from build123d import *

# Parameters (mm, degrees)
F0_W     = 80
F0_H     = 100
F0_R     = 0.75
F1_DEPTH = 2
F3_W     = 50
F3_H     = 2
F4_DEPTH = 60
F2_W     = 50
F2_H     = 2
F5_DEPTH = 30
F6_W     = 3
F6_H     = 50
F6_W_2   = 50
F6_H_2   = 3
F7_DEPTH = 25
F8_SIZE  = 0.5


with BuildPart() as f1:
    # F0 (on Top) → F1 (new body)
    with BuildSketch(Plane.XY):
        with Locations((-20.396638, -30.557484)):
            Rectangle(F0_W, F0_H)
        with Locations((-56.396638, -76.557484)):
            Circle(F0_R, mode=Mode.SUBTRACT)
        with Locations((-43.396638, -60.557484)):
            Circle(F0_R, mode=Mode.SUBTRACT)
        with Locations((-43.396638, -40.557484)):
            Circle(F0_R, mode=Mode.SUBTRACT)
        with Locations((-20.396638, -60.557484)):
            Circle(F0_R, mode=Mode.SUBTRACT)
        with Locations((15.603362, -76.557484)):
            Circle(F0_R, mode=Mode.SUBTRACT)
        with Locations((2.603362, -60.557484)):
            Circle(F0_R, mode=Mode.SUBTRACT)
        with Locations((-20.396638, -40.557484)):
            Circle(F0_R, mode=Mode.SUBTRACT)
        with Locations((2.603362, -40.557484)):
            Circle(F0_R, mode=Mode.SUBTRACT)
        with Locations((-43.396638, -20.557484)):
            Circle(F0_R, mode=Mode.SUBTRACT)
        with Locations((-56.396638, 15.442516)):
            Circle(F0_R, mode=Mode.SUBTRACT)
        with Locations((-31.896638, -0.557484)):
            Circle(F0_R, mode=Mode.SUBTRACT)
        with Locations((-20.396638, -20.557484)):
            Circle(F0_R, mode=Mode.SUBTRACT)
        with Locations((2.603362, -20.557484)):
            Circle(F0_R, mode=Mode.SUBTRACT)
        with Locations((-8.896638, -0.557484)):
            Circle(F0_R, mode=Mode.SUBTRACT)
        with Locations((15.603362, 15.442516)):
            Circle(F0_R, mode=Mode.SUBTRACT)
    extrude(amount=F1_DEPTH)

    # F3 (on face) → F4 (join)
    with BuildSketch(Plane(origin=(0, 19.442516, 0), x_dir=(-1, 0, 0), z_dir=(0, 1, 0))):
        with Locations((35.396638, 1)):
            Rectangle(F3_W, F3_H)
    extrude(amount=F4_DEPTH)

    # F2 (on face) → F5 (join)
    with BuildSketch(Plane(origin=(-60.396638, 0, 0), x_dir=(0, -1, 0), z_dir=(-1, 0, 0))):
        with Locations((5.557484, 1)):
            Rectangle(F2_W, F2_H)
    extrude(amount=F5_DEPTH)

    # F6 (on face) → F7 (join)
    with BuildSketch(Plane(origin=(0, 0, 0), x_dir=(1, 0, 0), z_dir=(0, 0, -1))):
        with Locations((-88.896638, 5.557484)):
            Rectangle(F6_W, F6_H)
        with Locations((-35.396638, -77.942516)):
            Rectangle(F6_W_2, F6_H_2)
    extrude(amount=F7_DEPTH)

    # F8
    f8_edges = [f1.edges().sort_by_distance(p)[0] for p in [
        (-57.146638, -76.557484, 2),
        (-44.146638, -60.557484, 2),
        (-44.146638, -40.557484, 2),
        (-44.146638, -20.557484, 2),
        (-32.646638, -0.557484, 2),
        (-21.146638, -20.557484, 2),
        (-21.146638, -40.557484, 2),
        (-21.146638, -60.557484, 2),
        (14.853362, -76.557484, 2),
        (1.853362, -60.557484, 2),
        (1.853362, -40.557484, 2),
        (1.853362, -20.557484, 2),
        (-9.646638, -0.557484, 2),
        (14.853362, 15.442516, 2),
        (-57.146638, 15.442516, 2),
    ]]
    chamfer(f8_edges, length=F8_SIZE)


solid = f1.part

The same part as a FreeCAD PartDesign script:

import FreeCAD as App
import Part
import Sketcher

V = App.Vector
Q = App.Units.Quantity


def edges_at(feature, points):
    """Names of the edges that pass closest to the given points."""
    edges = feature.Shape.Edges
    near = lambda p: min(range(len(edges)), key=lambda i: edges[i].distToShape(Part.Vertex(*p))[0])
    return sorted({f"Edge{near(p) + 1}" for p in points})

doc = App.newDocument("Part")
body = doc.addObject("PartDesign::Body", "Body")

# Sketch on XY plane
sketch1 = body.newObject("Sketcher::SketchObject", "Sketch")
sketch1.AttachmentSupport = (doc.getObject("XY_Plane"), [""])
sketch1.MapMode = "FlatFace"
sketch1.addGeometry(Part.LineSegment(V(-60.4, 19.4, 0), V(-60.4, -80.6, 0)), False)
sketch1.addGeometry(Part.LineSegment(V(-60.4, -80.6, 0), V(19.6, -80.6, 0)), False)
sketch1.addGeometry(Part.LineSegment(V(19.6, -80.6, 0), V(19.6, 19.4, 0)), False)
sketch1.addGeometry(Part.LineSegment(V(19.6, 19.4, 0), V(-60.4, 19.4, 0)), False)
sketch1.addGeometry(Part.Circle(V(-56.4, -76.6, 0), V(0, 0, 1), 0.8), False)
sketch1.addGeometry(Part.Circle(V(-43.4, -60.6, 0), V(0, 0, 1), 0.8), False)
sketch1.addGeometry(Part.Circle(V(-43.4, -40.6, 0), V(0, 0, 1), 0.8), False)
sketch1.addGeometry(Part.Circle(V(-20.4, -60.6, 0), V(0, 0, 1), 0.8), False)
sketch1.addGeometry(Part.Circle(V(15.6, -76.6, 0), V(0, 0, 1), 0.8), False)
sketch1.addGeometry(Part.Circle(V(2.6, -60.6, 0), V(0, 0, 1), 0.8), False)
sketch1.addGeometry(Part.Circle(V(-20.4, -40.6, 0), V(0, 0, 1), 0.8), False)
sketch1.addGeometry(Part.Circle(V(2.6, -40.6, 0), V(0, 0, 1), 0.8), False)
sketch1.addGeometry(Part.Circle(V(-43.4, -20.6, 0), V(0, 0, 1), 0.8), False)
sketch1.addGeometry(Part.Circle(V(-56.4, 15.4, 0), V(0, 0, 1), 0.8), False)
sketch1.addGeometry(Part.Circle(V(-31.9, -0.6, 0), V(0, 0, 1), 0.8), False)
sketch1.addGeometry(Part.Circle(V(-20.4, -20.6, 0), V(0, 0, 1), 0.8), False)
sketch1.addGeometry(Part.Circle(V(2.6, -20.6, 0), V(0, 0, 1), 0.8), False)
sketch1.addGeometry(Part.Circle(V(-8.9, -0.6, 0), V(0, 0, 1), 0.8), False)
sketch1.addGeometry(Part.Circle(V(15.6, 15.4, 0), V(0, 0, 1), 0.8), False)
sketch1.addConstraint(Sketcher.Constraint("Coincident", 0, 2, 1, 1))
sketch1.addConstraint(Sketcher.Constraint("Coincident", 1, 2, 2, 1))
sketch1.addConstraint(Sketcher.Constraint("Coincident", 2, 2, 3, 1))
sketch1.addConstraint(Sketcher.Constraint("Coincident", 3, 2, 0, 1))
sketch1.addConstraint(Sketcher.Constraint("Vertical", 0))
sketch1.addConstraint(Sketcher.Constraint("Horizontal", 1))
sketch1.addConstraint(Sketcher.Constraint("Vertical", 2))
sketch1.addConstraint(Sketcher.Constraint("Horizontal", 3))
sketch1.addConstraint(Sketcher.Constraint("Equal", 4, 5))
sketch1.addConstraint(Sketcher.Constraint("Equal", 5, 6))
sketch1.addConstraint(Sketcher.Constraint("Equal", 6, 7))
sketch1.addConstraint(Sketcher.Constraint("Equal", 7, 8))
sketch1.addConstraint(Sketcher.Constraint("Equal", 8, 9))
sketch1.addConstraint(Sketcher.Constraint("Equal", 9, 10))
sketch1.addConstraint(Sketcher.Constraint("Equal", 10, 11))
sketch1.addConstraint(Sketcher.Constraint("Equal", 11, 12))
sketch1.addConstraint(Sketcher.Constraint("Equal", 12, 13))
sketch1.addConstraint(Sketcher.Constraint("Equal", 13, 14))
sketch1.addConstraint(Sketcher.Constraint("Equal", 14, 15))
sketch1.addConstraint(Sketcher.Constraint("Equal", 15, 16))
sketch1.addConstraint(Sketcher.Constraint("Equal", 16, 17))
sketch1.addConstraint(Sketcher.Constraint("Equal", 17, 18))
sketch1.addConstraint(Sketcher.Constraint("Horizontal", 5, 3, 7, 3))
sketch1.addConstraint(Sketcher.Constraint("Horizontal", 4, 3, 8, 3))
sketch1.addConstraint(Sketcher.Constraint("Horizontal", 7, 3, 9, 3))
sketch1.addConstraint(Sketcher.Constraint("Horizontal", 6, 3, 10, 3))
sketch1.addConstraint(Sketcher.Constraint("Horizontal", 10, 3, 11, 3))
sketch1.addConstraint(Sketcher.Constraint("Horizontal", 12, 3, 15, 3))
sketch1.addConstraint(Sketcher.Constraint("Horizontal", 15, 3, 16, 3))
sketch1.addConstraint(Sketcher.Constraint("Horizontal", 14, 3, 17, 3))
sketch1.addConstraint(Sketcher.Constraint("Horizontal", 13, 3, 18, 3))
sketch1.addConstraint(Sketcher.Constraint("Vertical", 5, 3, 6, 3))
sketch1.addConstraint(Sketcher.Constraint("Vertical", 7, 3, 10, 3))
sketch1.addConstraint(Sketcher.Constraint("Vertical", 9, 3, 11, 3))
sketch1.addConstraint(Sketcher.Constraint("Vertical", 6, 3, 12, 3))
sketch1.addConstraint(Sketcher.Constraint("Vertical", 4, 3, 13, 3))
sketch1.addConstraint(Sketcher.Constraint("Vertical", 10, 3, 15, 3))
sketch1.addConstraint(Sketcher.Constraint("Vertical", 11, 3, 16, 3))
sketch1.addConstraint(Sketcher.Constraint("Vertical", 8, 3, 18, 3))
sketch1.addConstraint(Sketcher.Constraint("Diameter", 4, Q("1.5 mm")))
sketch1.addConstraint(Sketcher.Constraint("DistanceX", 1, 1, 1, 2, Q("80 mm")))
sketch1.addConstraint(Sketcher.Constraint("DistanceY", 0, 2, 0, 1, Q("100 mm")))
sketch1.addConstraint(Sketcher.Constraint("DistanceX", 4, 3, 5, 3, Q("13 mm")))
sketch1.addConstraint(Sketcher.Constraint("DistanceY", 4, 3, 5, 3, Q("16 mm")))
sketch1.addConstraint(Sketcher.Constraint("DistanceY", 5, 3, 6, 3, Q("20 mm")))
sketch1.addConstraint(Sketcher.Constraint("DistanceX", 5, 3, 7, 3, Q("23 mm")))
sketch1.addConstraint(Sketcher.Constraint("DistanceX", 7, 3, 8, 3, Q("36 mm")))
sketch1.addConstraint(Sketcher.Constraint("DistanceX", 9, 3, 8, 3, Q("13 mm")))
sketch1.addConstraint(Sketcher.Constraint("DistanceY", 6, 3, 12, 3, Q("20 mm")))
sketch1.addConstraint(Sketcher.Constraint("DistanceY", 12, 3, 13, 3, Q("36 mm")))
sketch1.addConstraint(Sketcher.Constraint("DistanceY", 12, 3, 14, 3, Q("20 mm")))
sketch1.addConstraint(Sketcher.Constraint("DistanceX", 14, 3, 17, 3, Q("23 mm")))
sketch1.addConstraint(Sketcher.Constraint("DistanceX", 0, 2, 4, 3, Q("4 mm")))
sketch1.addConstraint(Sketcher.Constraint("DistanceY", 0, 2, 4, 3, Q("4 mm")))
sketch1.addConstraint(Sketcher.Constraint("DistanceX", 12, 3, 14, 3, Q("11.5 mm")))
sketch1.addConstraint(Sketcher.Constraint("DistanceX", 4, 3, -1, 1, Q("56.396638 mm")))
sketch1.addConstraint(Sketcher.Constraint("DistanceY", 4, 3, -1, 1, Q("76.557484 mm")))
pad1 = body.newObject("PartDesign::Pad", "Pad")
pad1.Profile = sketch1
pad1.Length = 2

# Sketch on XZ plane
sketch2 = body.newObject("Sketcher::SketchObject", "Sketch001")
sketch2.AttachmentSupport = (doc.getObject("XZ_Plane"), [""])
sketch2.MapMode = "FlatFace"
sketch2.AttachmentOffset = App.Placement(V(0, 0, -19.442516), App.Rotation())
sketch2.addGeometry(Part.LineSegment(V(-10.4, 2, 0), V(-10.4, 0, 0)), False)
sketch2.addGeometry(Part.LineSegment(V(-10.4, 0, 0), V(-60.4, 0, 0)), False)
sketch2.addGeometry(Part.LineSegment(V(-60.4, 0, 0), V(-60.4, 2, 0)), False)
sketch2.addGeometry(Part.LineSegment(V(-60.4, 2, 0), V(-10.4, 2, 0)), False)
sketch2.addConstraint(Sketcher.Constraint("Coincident", 0, 2, 1, 1))
sketch2.addConstraint(Sketcher.Constraint("Coincident", 1, 2, 2, 1))
sketch2.addConstraint(Sketcher.Constraint("Coincident", 2, 2, 3, 1))
sketch2.addConstraint(Sketcher.Constraint("Coincident", 3, 2, 0, 1))
sketch2.addConstraint(Sketcher.Constraint("Vertical", 0))
sketch2.addConstraint(Sketcher.Constraint("Horizontal", 1))
sketch2.addConstraint(Sketcher.Constraint("Vertical", 2))
sketch2.addConstraint(Sketcher.Constraint("Horizontal", 3))
sketch2.addConstraint(Sketcher.Constraint("PointOnObject", 0, 2, -1))
sketch2.addConstraint(Sketcher.Constraint("DistanceX", 1, 2, 1, 1, Q("50 mm")))
sketch2.addConstraint(Sketcher.Constraint("DistanceY", 0, 2, 0, 1, Q("2 mm")))
sketch2.addConstraint(Sketcher.Constraint("DistanceX", 1, 2, -1, 1, Q("60.396638 mm")))
pad2 = body.newObject("PartDesign::Pad", "Pad001")
pad2.Profile = sketch2
pad2.Length = 60
pad2.Reversed = True

# Sketch on YZ plane
sketch3 = body.newObject("Sketcher::SketchObject", "Sketch002")
sketch3.AttachmentSupport = (doc.getObject("YZ_Plane"), [""])
sketch3.MapMode = "FlatFace"
sketch3.AttachmentOffset = App.Placement(V(0, 0, -60.396638), App.Rotation())
sketch3.addGeometry(Part.LineSegment(V(19.4, 2, 0), V(19.4, 0, 0)), False)
sketch3.addGeometry(Part.LineSegment(V(19.4, 0, 0), V(-30.6, 0, 0)), False)
sketch3.addGeometry(Part.LineSegment(V(-30.6, 0, 0), V(-30.6, 2, 0)), False)
sketch3.addGeometry(Part.LineSegment(V(-30.6, 2, 0), V(19.4, 2, 0)), False)
sketch3.addConstraint(Sketcher.Constraint("Coincident", 0, 2, 1, 1))
sketch3.addConstraint(Sketcher.Constraint("Coincident", 1, 2, 2, 1))
sketch3.addConstraint(Sketcher.Constraint("Coincident", 2, 2, 3, 1))
sketch3.addConstraint(Sketcher.Constraint("Coincident", 3, 2, 0, 1))
sketch3.addConstraint(Sketcher.Constraint("Vertical", 0))
sketch3.addConstraint(Sketcher.Constraint("Horizontal", 1))
sketch3.addConstraint(Sketcher.Constraint("Vertical", 2))
sketch3.addConstraint(Sketcher.Constraint("Horizontal", 3))
sketch3.addConstraint(Sketcher.Constraint("PointOnObject", 0, 2, -1))
sketch3.addConstraint(Sketcher.Constraint("DistanceX", 1, 2, 1, 1, Q("50 mm")))
sketch3.addConstraint(Sketcher.Constraint("DistanceY", 0, 2, 0, 1, Q("2 mm")))
sketch3.addConstraint(Sketcher.Constraint("DistanceX", -1, 1, 0, 2, Q("19.442516 mm")))
pad3 = body.newObject("PartDesign::Pad", "Pad002")
pad3.Profile = sketch3
pad3.Length = 30
pad3.Reversed = True

# Sketch on XY plane
sketch4 = body.newObject("Sketcher::SketchObject", "Sketch003")
sketch4.AttachmentSupport = (doc.getObject("XY_Plane"), [""])
sketch4.MapMode = "FlatFace"
sketch4.addGeometry(Part.LineSegment(V(-90.4, -30.6, 0), V(-90.4, 19.4, 0)), False)
sketch4.addGeometry(Part.LineSegment(V(-90.4, 19.4, 0), V(-87.4, 19.4, 0)), False)
sketch4.addGeometry(Part.LineSegment(V(-87.4, 19.4, 0), V(-87.4, -30.6, 0)), False)
sketch4.addGeometry(Part.LineSegment(V(-87.4, -30.6, 0), V(-90.4, -30.6, 0)), False)
sketch4.addGeometry(Part.LineSegment(V(-60.4, 76.4, 0), V(-60.4, 79.4, 0)), False)
sketch4.addGeometry(Part.LineSegment(V(-60.4, 79.4, 0), V(-10.4, 79.4, 0)), False)
sketch4.addGeometry(Part.LineSegment(V(-10.4, 79.4, 0), V(-10.4, 76.4, 0)), False)
sketch4.addGeometry(Part.LineSegment(V(-10.4, 76.4, 0), V(-60.4, 76.4, 0)), False)
sketch4.addConstraint(Sketcher.Constraint("Coincident", 0, 2, 1, 1))
sketch4.addConstraint(Sketcher.Constraint("Coincident", 1, 2, 2, 1))
sketch4.addConstraint(Sketcher.Constraint("Coincident", 2, 2, 3, 1))
sketch4.addConstraint(Sketcher.Constraint("Coincident", 3, 2, 0, 1))
sketch4.addConstraint(Sketcher.Constraint("Coincident", 4, 2, 5, 1))
sketch4.addConstraint(Sketcher.Constraint("Coincident", 5, 2, 6, 1))
sketch4.addConstraint(Sketcher.Constraint("Coincident", 6, 2, 7, 1))
sketch4.addConstraint(Sketcher.Constraint("Coincident", 7, 2, 4, 1))
sketch4.addConstraint(Sketcher.Constraint("Vertical", 0))
sketch4.addConstraint(Sketcher.Constraint("Horizontal", 1))
sketch4.addConstraint(Sketcher.Constraint("Vertical", 2))
sketch4.addConstraint(Sketcher.Constraint("Horizontal", 3))
sketch4.addConstraint(Sketcher.Constraint("Vertical", 4))
sketch4.addConstraint(Sketcher.Constraint("Horizontal", 5))
sketch4.addConstraint(Sketcher.Constraint("Vertical", 6))
sketch4.addConstraint(Sketcher.Constraint("Horizontal", 7))
sketch4.addConstraint(Sketcher.Constraint("Equal", 7, 0))
sketch4.addConstraint(Sketcher.Constraint("Equal", 3, 4))
sketch4.addConstraint(Sketcher.Constraint("DistanceX", 1, 1, 1, 2, Q("3 mm")))
sketch4.addConstraint(Sketcher.Constraint("DistanceX", 5, 1, 5, 2, Q("50 mm")))
sketch4.addConstraint(Sketcher.Constraint("DistanceX", 1, 2, 4, 2, Q("27 mm")))
sketch4.addConstraint(Sketcher.Constraint("DistanceY", 1, 2, 4, 2, Q("60 mm")))
sketch4.addConstraint(Sketcher.Constraint("DistanceX", 4, 2, -1, 1, Q("60.396638 mm")))
sketch4.addConstraint(Sketcher.Constraint("DistanceY", -1, 1, 0, 2, Q("19.442516 mm")))
pad4 = body.newObject("PartDesign::Pad", "Pad003")
pad4.Profile = sketch4
pad4.Length = 25
pad4.Reversed = True
doc.recompute()

chamfer = body.newObject("PartDesign::Chamfer", "Chamfer")
chamfer.Base = (pad4, edges_at(pad4, [
    (-57.147, -76.557, 2),
    (-44.147, -60.557, 2),
    (-44.147, -40.557, 2),
    (-44.147, -20.557, 2),
    (-32.647, -0.557, 2),
    (-21.147, -20.557, 2),
    (-21.147, -40.557, 2),
    (-21.147, -60.557, 2),
    (14.853, -76.557, 2),
    (1.853, -60.557, 2),
    (1.853, -40.557, 2),
    (1.853, -20.557, 2),
    (-9.647, -0.557, 2),
    (14.853, 15.443, 2),
    (-57.147, 15.443, 2),
]))
chamfer.Size = 0.5

doc.recompute()
